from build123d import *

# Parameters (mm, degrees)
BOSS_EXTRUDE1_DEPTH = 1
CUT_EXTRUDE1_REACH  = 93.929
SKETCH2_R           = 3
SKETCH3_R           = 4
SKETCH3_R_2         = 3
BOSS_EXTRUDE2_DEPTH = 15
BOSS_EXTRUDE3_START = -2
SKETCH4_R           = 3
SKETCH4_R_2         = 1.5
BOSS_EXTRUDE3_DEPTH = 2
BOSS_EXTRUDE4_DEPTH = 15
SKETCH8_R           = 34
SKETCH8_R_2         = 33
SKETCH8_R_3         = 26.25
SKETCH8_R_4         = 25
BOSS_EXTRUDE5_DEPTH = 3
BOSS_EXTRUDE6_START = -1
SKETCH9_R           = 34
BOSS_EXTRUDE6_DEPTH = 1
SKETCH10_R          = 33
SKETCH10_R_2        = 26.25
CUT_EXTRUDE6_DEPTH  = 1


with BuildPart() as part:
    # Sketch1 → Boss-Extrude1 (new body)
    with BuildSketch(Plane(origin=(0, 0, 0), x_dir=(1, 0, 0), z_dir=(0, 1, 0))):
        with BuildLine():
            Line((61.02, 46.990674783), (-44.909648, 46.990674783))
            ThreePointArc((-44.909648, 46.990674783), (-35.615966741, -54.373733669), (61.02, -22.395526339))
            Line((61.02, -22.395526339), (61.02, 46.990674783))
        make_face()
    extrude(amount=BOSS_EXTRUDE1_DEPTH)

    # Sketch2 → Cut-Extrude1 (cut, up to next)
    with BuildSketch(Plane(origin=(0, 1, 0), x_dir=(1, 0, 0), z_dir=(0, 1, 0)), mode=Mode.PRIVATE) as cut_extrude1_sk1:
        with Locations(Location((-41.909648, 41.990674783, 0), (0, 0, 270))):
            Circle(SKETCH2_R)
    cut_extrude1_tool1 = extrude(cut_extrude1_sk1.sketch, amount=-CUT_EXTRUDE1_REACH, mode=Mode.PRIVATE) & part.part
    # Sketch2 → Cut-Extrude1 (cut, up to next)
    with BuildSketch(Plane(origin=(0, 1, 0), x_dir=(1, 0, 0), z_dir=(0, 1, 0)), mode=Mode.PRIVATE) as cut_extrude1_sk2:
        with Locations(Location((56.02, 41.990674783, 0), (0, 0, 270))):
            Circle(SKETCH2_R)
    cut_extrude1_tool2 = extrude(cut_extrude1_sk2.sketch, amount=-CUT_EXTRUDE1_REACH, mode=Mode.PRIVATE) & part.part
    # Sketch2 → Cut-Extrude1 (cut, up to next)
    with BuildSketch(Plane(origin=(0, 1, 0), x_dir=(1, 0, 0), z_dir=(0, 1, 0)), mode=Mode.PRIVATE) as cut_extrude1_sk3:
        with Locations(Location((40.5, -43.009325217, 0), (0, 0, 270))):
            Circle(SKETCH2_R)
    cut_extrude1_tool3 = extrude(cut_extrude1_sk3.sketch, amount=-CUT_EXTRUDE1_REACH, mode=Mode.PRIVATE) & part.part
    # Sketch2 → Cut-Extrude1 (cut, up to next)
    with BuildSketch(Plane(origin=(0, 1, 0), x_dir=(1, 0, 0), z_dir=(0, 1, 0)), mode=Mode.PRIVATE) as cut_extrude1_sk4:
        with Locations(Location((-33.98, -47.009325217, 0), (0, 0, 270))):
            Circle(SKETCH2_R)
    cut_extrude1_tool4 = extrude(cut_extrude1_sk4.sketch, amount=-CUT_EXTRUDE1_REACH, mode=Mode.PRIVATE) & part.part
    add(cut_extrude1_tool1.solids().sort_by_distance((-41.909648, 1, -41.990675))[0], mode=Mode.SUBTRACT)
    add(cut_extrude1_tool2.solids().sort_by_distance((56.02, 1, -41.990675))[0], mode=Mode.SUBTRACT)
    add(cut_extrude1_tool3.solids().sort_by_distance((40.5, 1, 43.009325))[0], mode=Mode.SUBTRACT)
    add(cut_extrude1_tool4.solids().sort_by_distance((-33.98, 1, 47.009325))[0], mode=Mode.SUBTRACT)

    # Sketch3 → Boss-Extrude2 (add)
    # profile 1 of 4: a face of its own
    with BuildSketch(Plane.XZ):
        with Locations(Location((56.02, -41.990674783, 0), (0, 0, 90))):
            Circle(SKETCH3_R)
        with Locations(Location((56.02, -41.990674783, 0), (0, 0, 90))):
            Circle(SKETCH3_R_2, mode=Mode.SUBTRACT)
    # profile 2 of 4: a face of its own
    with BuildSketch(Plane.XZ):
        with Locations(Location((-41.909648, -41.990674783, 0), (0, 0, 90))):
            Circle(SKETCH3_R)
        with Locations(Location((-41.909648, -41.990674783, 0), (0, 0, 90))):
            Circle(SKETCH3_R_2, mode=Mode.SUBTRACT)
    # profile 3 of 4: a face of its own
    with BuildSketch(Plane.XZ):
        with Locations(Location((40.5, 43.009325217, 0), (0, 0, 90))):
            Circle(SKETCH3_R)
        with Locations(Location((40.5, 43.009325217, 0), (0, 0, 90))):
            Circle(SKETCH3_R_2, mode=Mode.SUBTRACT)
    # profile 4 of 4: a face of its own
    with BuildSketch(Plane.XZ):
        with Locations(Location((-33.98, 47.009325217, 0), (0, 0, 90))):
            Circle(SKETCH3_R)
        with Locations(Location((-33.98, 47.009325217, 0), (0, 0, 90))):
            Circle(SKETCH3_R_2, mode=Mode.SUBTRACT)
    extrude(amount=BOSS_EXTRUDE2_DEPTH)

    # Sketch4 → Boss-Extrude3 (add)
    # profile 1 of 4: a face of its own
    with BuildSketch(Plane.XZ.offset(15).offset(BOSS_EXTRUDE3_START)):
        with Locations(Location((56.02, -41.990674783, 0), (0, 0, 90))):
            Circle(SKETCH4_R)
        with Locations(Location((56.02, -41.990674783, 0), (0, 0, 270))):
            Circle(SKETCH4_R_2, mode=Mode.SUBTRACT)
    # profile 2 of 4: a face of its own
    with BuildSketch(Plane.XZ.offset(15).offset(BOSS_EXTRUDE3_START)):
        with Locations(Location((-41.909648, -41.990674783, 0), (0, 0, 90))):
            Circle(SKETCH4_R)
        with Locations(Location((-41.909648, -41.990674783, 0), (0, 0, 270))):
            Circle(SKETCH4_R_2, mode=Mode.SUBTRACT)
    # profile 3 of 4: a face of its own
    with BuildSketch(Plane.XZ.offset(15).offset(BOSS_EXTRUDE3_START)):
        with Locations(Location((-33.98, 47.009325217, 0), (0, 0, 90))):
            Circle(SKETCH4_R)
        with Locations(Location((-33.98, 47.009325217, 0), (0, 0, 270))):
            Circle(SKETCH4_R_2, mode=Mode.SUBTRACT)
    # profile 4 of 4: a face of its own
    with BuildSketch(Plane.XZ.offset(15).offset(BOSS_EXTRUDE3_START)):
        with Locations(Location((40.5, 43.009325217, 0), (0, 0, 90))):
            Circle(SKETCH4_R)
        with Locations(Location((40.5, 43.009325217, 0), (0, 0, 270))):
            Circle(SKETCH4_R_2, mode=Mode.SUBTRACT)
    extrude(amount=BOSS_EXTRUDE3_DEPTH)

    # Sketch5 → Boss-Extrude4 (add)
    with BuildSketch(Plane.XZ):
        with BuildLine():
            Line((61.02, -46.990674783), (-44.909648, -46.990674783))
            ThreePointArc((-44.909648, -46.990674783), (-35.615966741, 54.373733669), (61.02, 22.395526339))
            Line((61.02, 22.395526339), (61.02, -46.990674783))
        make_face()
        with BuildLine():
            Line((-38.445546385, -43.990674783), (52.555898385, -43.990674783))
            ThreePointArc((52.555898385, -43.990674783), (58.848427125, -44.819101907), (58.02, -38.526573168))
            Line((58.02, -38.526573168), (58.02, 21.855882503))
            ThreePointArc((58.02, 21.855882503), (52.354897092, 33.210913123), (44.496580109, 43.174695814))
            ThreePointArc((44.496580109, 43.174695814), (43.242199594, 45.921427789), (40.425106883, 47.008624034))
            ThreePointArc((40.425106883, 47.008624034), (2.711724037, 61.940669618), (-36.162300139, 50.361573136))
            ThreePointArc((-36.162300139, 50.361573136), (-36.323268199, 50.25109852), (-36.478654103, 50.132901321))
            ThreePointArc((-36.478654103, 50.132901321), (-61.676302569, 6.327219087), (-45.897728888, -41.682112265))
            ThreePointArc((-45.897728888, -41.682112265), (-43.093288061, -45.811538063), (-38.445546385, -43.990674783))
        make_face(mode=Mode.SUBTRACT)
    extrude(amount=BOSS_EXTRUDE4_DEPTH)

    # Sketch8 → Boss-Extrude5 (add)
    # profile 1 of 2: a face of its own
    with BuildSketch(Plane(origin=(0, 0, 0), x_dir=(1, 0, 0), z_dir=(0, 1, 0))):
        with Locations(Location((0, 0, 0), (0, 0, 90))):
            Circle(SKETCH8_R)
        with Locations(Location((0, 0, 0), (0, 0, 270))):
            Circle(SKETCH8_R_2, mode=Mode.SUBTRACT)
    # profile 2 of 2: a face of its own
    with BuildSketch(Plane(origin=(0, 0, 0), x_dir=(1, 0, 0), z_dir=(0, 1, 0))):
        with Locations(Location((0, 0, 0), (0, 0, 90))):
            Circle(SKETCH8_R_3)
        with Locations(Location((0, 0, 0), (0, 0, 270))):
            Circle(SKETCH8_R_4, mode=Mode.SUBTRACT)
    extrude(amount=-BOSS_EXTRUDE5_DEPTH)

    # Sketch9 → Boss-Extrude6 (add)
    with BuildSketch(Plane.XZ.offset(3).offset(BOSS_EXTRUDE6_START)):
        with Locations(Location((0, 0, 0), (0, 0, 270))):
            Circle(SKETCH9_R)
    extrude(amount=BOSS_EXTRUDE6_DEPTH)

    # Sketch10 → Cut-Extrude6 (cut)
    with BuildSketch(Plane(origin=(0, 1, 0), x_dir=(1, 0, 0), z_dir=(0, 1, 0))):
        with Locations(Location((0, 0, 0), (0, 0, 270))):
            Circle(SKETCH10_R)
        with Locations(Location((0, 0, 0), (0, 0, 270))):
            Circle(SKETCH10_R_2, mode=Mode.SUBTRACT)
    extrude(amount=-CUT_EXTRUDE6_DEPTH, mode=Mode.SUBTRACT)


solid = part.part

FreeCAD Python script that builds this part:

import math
import FreeCAD as App
import Part
import Sketcher

doc = App.newDocument("Part")
body = doc.addObject("PartDesign::Body", "Body")

# Sketch on XZ plane
sketch1 = body.newObject("Sketcher::SketchObject", "Sketch")
sketch1.AttachmentSupport = (doc.getObject("XZ_Plane"), [""])
sketch1.MapMode = "FlatFace"
sketch1.addGeometry(Part.LineSegment(App.Vector(61, -47, 0), App.Vector(-45, -47, 0)), False)
sketch1.addGeometry(Part.ArcOfCircle(Part.Circle(App.Vector(0, 0, 0), App.Vector(0, 0, 1), 65), math.radians(20), math.radians(226)), False)
sketch1.addGeometry(Part.LineSegment(App.Vector(61, 22, 0), App.Vector(61, -47, 0)), False)
sketch1.addConstraint(Sketcher.Constraint("Coincident", 0, 2, 1, 2))
sketch1.addConstraint(Sketcher.Constraint("Coincident", 1, 1, 2, 1))
sketch1.addConstraint(Sketcher.Constraint("Coincident", 2, 2, 0, 1))
sketch1.addConstraint(Sketcher.Constraint("Horizontal", 0))
sketch1.addConstraint(Sketcher.Constraint("Vertical", 2))
sketch1.addConstraint(Sketcher.Constraint("Coincident", 1, 3, -1, 1))
sketch1.addConstraint(Sketcher.Constraint("Radius", 1, 65.0))
sketch1.addConstraint(Sketcher.Constraint("DistanceX", -1, 1, 1, 1, 61.02))
sketch1.addConstraint(Sketcher.Constraint("DistanceY", 2, 2, 2, 1, 69.386201))
pad1 = body.newObject("PartDesign::Pad", "Pad")
pad1.Profile = sketch1
pad1.Length = 1
pad1.Reversed = True

# Sketch on XZ plane
sketch2 = body.newObject("Sketcher::SketchObject", "Sketch001")
sketch2.AttachmentSupport = (doc.getObject("XZ_Plane"), [""])
sketch2.MapMode = "FlatFace"
sketch2.AttachmentOffset = App.Placement(App.Vector(0, 0, -1), App.Rotation())
sketch2.addGeometry(Part.Circle(App.Vector(-41.9, -42, 0), App.Vector(0, 0, 1), 3), False)
sketch2.addConstraint(Sketcher.Constraint("Diameter", 0, 6.0))
sketch2.addConstraint(Sketcher.Constraint("DistanceX", 0, 3, -1, 1, 41.909648))
sketch2.addConstraint(Sketcher.Constraint("DistanceY", 0, 3, -1, 1, 41.990675))
pocket1 = body.newObject("PartDesign::Pocket", "Pocket")
pocket1.Profile = sketch2
pocket1.Type = "UpToFirst"
pocket1.Reversed = True

# Sketch on XZ plane
sketch3 = body.newObject("Sketcher::SketchObject", "Sketch002")
sketch3.AttachmentSupport = (doc.getObject("XZ_Plane"), [""])
sketch3.MapMode = "FlatFace"
sketch3.AttachmentOffset = App.Placement(App.Vector(0, 0, -1), App.Rotation())
sketch3.addGeometry(Part.Circle(App.Vector(56, -42, 0), App.Vector(0, 0, 1), 3), False)
sketch3.addConstraint(Sketcher.Constraint("Diameter", 0, 6.0))
sketch3.addConstraint(Sketcher.Constraint("DistanceX", -1, 1, 0, 3, 56.02))
sketch3.addConstraint(Sketcher.Constraint("DistanceY", 0, 3, -1, 1, 41.990675))
pocket2 = body.newObject("PartDesign::Pocket", "Pocket001")
pocket2.Profile = sketch3
pocket2.Type = "UpToFirst"
pocket2.Reversed = True

# Sketch on XZ plane
sketch4 = body.newObject("Sketcher::SketchObject", "Sketch003")
sketch4.AttachmentSupport = (doc.getObject("XZ_Plane"), [""])
sketch4.MapMode = "FlatFace"
sketch4.AttachmentOffset = App.Placement(App.Vector(0, 0, -1), App.Rotation())
sketch4.addGeometry(Part.Circle(App.Vector(40.5, 43, 0), App.Vector(0, 0, 1), 3), False)
sketch4.addConstraint(Sketcher.Constraint("Diameter", 0, 6.0))
sketch4.addConstraint(Sketcher.Constraint("DistanceX", -1, 1, 0, 3, 40.5))
sketch4.addConstraint(Sketcher.Constraint("DistanceY", -1, 1, 0, 3, 43.009325))
pocket3 = body.newObject("PartDesign::Pocket", "Pocket002")
pocket3.Profile = sketch4
pocket3.Type = "UpToFirst"
pocket3.Reversed = True

# Sketch on XZ plane
sketch5 = body.newObject("Sketcher::SketchObject", "Sketch004")
sketch5.AttachmentSupport = (doc.getObject("XZ_Plane"), [""])
sketch5.MapMode = "FlatFace"
sketch5.AttachmentOffset = App.Placement(App.Vector(0, 0, -1), App.Rotation())
sketch5.addGeometry(Part.Circle(App.Vector(-34, 47, 0), App.Vector(0, 0, 1), 3), False)
sketch5.addConstraint(Sketcher.Constraint("Diameter", 0, 6.0))
sketch5.addConstraint(Sketcher.Constraint("DistanceX", 0, 3, -1, 1, 33.98))
sketch5.addConstraint(Sketcher.Constraint("DistanceY", -1, 1, 0, 3, 47.009325))
pocket4 = body.newObject("PartDesign::Pocket", "Pocket003")
pocket4.Profile = sketch5
pocket4.Type = "UpToFirst"
pocket4.Reversed = True

# Sketch on XZ plane
sketch6 = body.newObject("Sketcher::SketchObject", "Sketch005")
sketch6.AttachmentSupport = (doc.getObject("XZ_Plane"), [""])
sketch6.MapMode = "FlatFace"
sketch6.addGeometry(Part.Circle(App.Vector(56, -42, 0), App.Vector(0, 0, 1), 4), False)
sketch6.addGeometry(Part.Circle(App.Vector(56, -42, 0), App.Vector(0, 0, 1), 3), False)
sketch6.addGeometry(Part.Circle(App.Vector(-41.9, -42, 0), App.Vector(0, 0, 1), 4), False)
sketch6.addGeometry(Part.Circle(App.Vector(-41.9, -42, 0), App.Vector(0, 0, 1), 3), False)
sketch6.addGeometry(Part.Circle(App.Vector(40.5, 43, 0), App.Vector(0, 0, 1), 4), False)
sketch6.addGeometry(Part.Circle(App.Vector(40.5, 43, 0), App.Vector(0, 0, 1), 3), False)
sketch6.addGeometry(Part.Circle(App.Vector(-34, 47, 0), App.Vector(0, 0, 1), 4), False)
sketch6.addGeometry(Part.Circle(App.Vector(-34, 47, 0), App.Vector(0, 0, 1), 3), False)
sketch6.addConstraint(Sketcher.Constraint("Coincident", 1, 3, 0, 3))
sketch6.addConstraint(Sketcher.Constraint("Coincident", 3, 3, 2, 3))
sketch6.addConstraint(Sketcher.Constraint("Coincident", 5, 3, 4, 3))
sketch6.addConstraint(Sketcher.Constraint("Coincident", 7, 3, 6, 3))
sketch6.addConstraint(Sketcher.Constraint("Equal", 0, 2))
sketch6.addConstraint(Sketcher.Constraint("Equal", 1, 3))
sketch6.addConstraint(Sketcher.Constraint("Equal", 2, 4))
sketch6.addConstraint(Sketcher.Constraint("Equal", 3, 5))
sketch6.addConstraint(Sketcher.Constraint("Equal", 4, 6))
sketch6.addConstraint(Sketcher.Constraint("Equal", 5, 7))
sketch6.addConstraint(Sketcher.Constraint("Horizontal", 1, 3, 2, 3))
sketch6.addConstraint(Sketcher.Constraint("Diameter", 0, 8.0))
sketch6.addConstraint(Sketcher.Constraint("Diameter", 1, 6.0))
sketch6.addConstraint(Sketcher.Constraint("DistanceY", 0, 3, 4, 3, 85.0))
sketch6.addConstraint(Sketcher.Constraint("DistanceY", 4, 3, 6, 3, 4.0))
sketch6.addConstraint(Sketcher.Constraint("DistanceX", 6, 3, 0, 3, 90.0))
sketch6.addConstraint(Sketcher.Constraint("DistanceX", -1, 1, 4, 3, 40.5))
sketch6.addConstraint(Sketcher.Constraint("DistanceX", -1, 1, 0, 3, 56.02))
sketch6.addConstraint(Sketcher.Constraint("DistanceX", 2, 3, 0, 3, 97.929648))
sketch6.addConstraint(Sketcher.Constraint("DistanceY", 0, 3, -1, 1, 41.990675))
pad2 = body.newObject("PartDesign::Pad", "Pad001")
pad2.Profile = sketch6
pad2.Length = 15

# Sketch on XZ plane
sketch7 = body.newObject("Sketcher::SketchObject", "Sketch006")
sketch7.AttachmentSupport = (doc.getObject("XZ_Plane"), [""])
sketch7.MapMode = "FlatFace"
sketch7.AttachmentOffset = App.Placement(App.Vector(0, 0, 13), App.Rotation())
sketch7.addGeometry(Part.Circle(App.Vector(56, -42, 0), App.Vector(0, 0, 1), 3), False)
sketch7.addGeometry(Part.Circle(App.Vector(56, -42, 0), App.Vector(0, 0, 1), 1.5), False)
sketch7.addGeometry(Part.Circle(App.Vector(-41.9, -42, 0), App.Vector(0, 0, 1), 3), False)
sketch7.addGeometry(Part.Circle(App.Vector(-41.9, -42, 0), App.Vector(0, 0, 1), 1.5), False)
sketch7.addGeometry(Part.Circle(App.Vector(-34, 47, 0), App.Vector(0, 0, 1), 3), False)
sketch7.addGeometry(Part.Circle(App.Vector(-34, 47, 0), App.Vector(0, 0, 1), 1.5), False)
sketch7.addGeometry(Part.Circle(App.Vector(40.5, 43, 0), App.Vector(0, 0, 1), 3), False)
sketch7.addGeometry(Part.Circle(App.Vector(40.5, 43, 0), App.Vector(0, 0, 1), 1.5), False)
sketch7.addConstraint(Sketcher.Constraint("Coincident", 1, 3, 0, 3))
sketch7.addConstraint(Sketcher.Constraint("Coincident", 3, 3, 2, 3))
sketch7.addConstraint(Sketcher.Constraint("Coincident", 5, 3, 4, 3))
sketch7.addConstraint(Sketcher.Constraint("Coincident", 7, 3, 6, 3))
sketch7.addConstraint(Sketcher.Constraint("Equal", 0, 2))
sketch7.addConstraint(Sketcher.Constraint("Equal", 1, 3))
sketch7.addConstraint(Sketcher.Constraint("Equal", 2, 4))
sketch7.addConstraint(Sketcher.Constraint("Equal", 3, 5))
sketch7.addConstraint(Sketcher.Constraint("Equal", 4, 6))
sketch7.addConstraint(Sketcher.Constraint("Equal", 5, 7))
sketch7.addConstraint(Sketcher.Constraint("Horizontal", 1, 3, 2, 3))
sketch7.addConstraint(Sketcher.Constraint("Diameter", 0, 6.0))
sketch7.addConstraint(Sketcher.Constraint("Diameter", 1, 3.0))
sketch7.addConstraint(Sketcher.Constraint("DistanceY", 2, 3, 4, 3, 89.0))
sketch7.addConstraint(Sketcher.Constraint("DistanceX", 4, 3, 0, 3, 90.0))
sketch7.addConstraint(Sketcher.Constraint("DistanceY", 6, 3, 4, 3, 4.0))
sketch7.addConstraint(Sketcher.Constraint("DistanceX", -1, 1, 6, 3, 40.5))
sketch7.addConstraint(Sketcher.Constraint("DistanceX", -1, 1, 0, 3, 56.02))
sketch7.addConstraint(Sketcher.Constraint("DistanceX", 2, 3, 0, 3, 97.929648))
sketch7.addConstraint(Sketcher.Constraint("DistanceY", 0, 3, -1, 1, 41.990675))
pad3 = body.newObject("PartDesign::Pad", "Pad002")
pad3.Profile = sketch7
pad3.Length = 2

# Sketch on XZ plane
sketch8 = body.newObject("Sketcher::SketchObject", "Sketch007")
sketch8.AttachmentSupport = (doc.getObject("XZ_Plane"), [""])
sketch8.MapMode = "FlatFace"
sketch8.addGeometry(Part.LineSegment(App.Vector(-44.909648, -46.990675, 0), App.Vector(61.02, -46.990675, 0)), False)
sketch8.addGeometry(Part.LineSegment(App.Vector(61.02, -46.990675, 0), App.Vector(61.02, 22.395526, 0)), False)
sketch8.addGeometry(Part.ArcOfCircle(Part.Circle(App.Vector(0, 0, 0), App.Vector(0, 0, 1), 65), math.radians(20.154119), math.radians(226.297206)), False)
sketch8.addGeometry(Part.ArcOfCircle(Part.Circle(App.Vector(-41.909648, -41.990675, 0), App.Vector(0, 0, 1), 4), math.radians(175.575772), math.radians(330)), False)
sketch8.addGeometry(Part.ArcOfCircle(Part.Circle(App.Vector(0, 0, 0), App.Vector(0, 0, 1), 62), math.radians(126.041097), math.radians(222.24422)), False)
sketch8.addGeometry(Part.ArcOfCircle(Part.Circle(App.Vector(-33.98, 47.009325, 0), App.Vector(0, 0, 1), 4.000001), math.radians(123.063969), math.radians(128.657495)), False)
sketch8.addGeometry(Part.ArcOfCircle(Part.Circle(App.Vector(0, 0, 0), App.Vector(0, 0, 1), 62), math.radians(49.306087), math.radians(125.680367)), False)
sketch8.addGeometry(Part.ArcOfCircle(Part.Circle(App.Vector(40.5, 43.009325, 0), App.Vector(0, 0, 1), 4), math.radians(2.369435), math.radians(91.072828)), False)
sketch8.addGeometry(Part.ArcOfCircle(Part.Circle(App.Vector(0, 0, 0), App.Vector(0, 0, 1), 62), math.radians(20.641174), math.radians(44.136175)), False)
sketch8.addGeometry(Part.LineSegment(App.Vector(58.02, 21.855883, 0), App.Vector(58.02, -38.526573, 0)), False)
sketch8.addGeometry(Part.ArcOfCircle(Part.Circle(App.Vector(56.02, -41.990675, 0), App.Vector(0, 0, 1), 4), math.radians(-150), math.radians(60)), False)
sketch8.addGeometry(Part.LineSegment(App.Vector(52.555898, -43.990675, 0), App.Vector(-38.445546, -43.990675, 0)), False)
sketch8.addConstraint(Sketcher.Constraint("Coincident", 0, 2, 1, 1))
sketch8.addConstraint(Sketcher.Constraint("Coincident", 1, 2, 2, 1))
sketch8.addConstraint(Sketcher.Constraint("Coincident", 2, 2, 0, 1))
sketch8.addConstraint(Sketcher.Constraint("Coincident", 3, 1, 4, 2))
sketch8.addConstraint(Sketcher.Constraint("Coincident", 4, 1, 5, 2))
sketch8.addConstraint(Sketcher.Constraint("Coincident", 5, 1, 6, 2))
sketch8.addConstraint(Sketcher.Constraint("Coincident", 6, 1, 7, 2))
sketch8.addConstraint(Sketcher.Constraint("Coincident", 7, 1, 8, 2))
sketch8.addConstraint(Sketcher.Constraint("Coincident", 8, 1, 9, 1))
sketch8.addConstraint(Sketcher.Constraint("Coincident", 9, 2, 10, 2))
sketch8.addConstraint(Sketcher.Constraint("Coincident", 10, 1, 11, 1))
sketch8.addConstraint(Sketcher.Constraint("Coincident", 11, 2, 3, 2))
sketch8.addConstraint(Sketcher.Constraint("Horizontal", 0))
sketch8.addConstraint(Sketcher.Constraint("Vertical", 1))
sketch8.addConstraint(Sketcher.Constraint("Vertical", 9))
sketch8.addConstraint(Sketcher.Constraint("Horizontal", 11))
sketch8.addConstraint(Sketcher.Constraint("Coincident", 2, 3, -1, 1))
sketch8.addConstraint(Sketcher.Constraint("Coincident", 4, 3, -1, 1))
sketch8.addConstraint(Sketcher.Constraint("Coincident", 6, 3, -1, 1))
sketch8.addConstraint(Sketcher.Constraint("Coincident", 8, 3, -1, 1))
sketch8.addConstraint(Sketcher.Constraint("Equal", 3, 5))
sketch8.addConstraint(Sketcher.Constraint("Equal", 4, 6))
sketch8.addConstraint(Sketcher.Constraint("Equal", 5, 7))
sketch8.addConstraint(Sketcher.Constraint("Equal", 6, 8))
sketch8.addConstraint(Sketcher.Constraint("Equal", 7, 10))
sketch8.addConstraint(Sketcher.Constraint("Horizontal", 3, 3, 10, 3))
sketch8.addConstraint(Sketcher.Constraint("Radius", 2, 65.0))
sketch8.addConstraint(Sketcher.Constraint("Radius", 3, 4.0))
sketch8.addConstraint(Sketcher.Constraint("Radius", 4, 62.0))
sketch8.addConstraint(Sketcher.Constraint("DistanceY", 3, 3, 5, 3, 89.0))
sketch8.addConstraint(Sketcher.Constraint("DistanceY", 7, 3, 5, 3, 4.0))
sketch8.addConstraint(Sketcher.Constraint("DistanceX", 10, 3, 0, 2, 5.0))
sketch8.addConstraint(Sketcher.Constraint("DistanceY", 0, 2, 10, 3, 5.0))
sketch8.addConstraint(Sketcher.Constraint("DistanceX", 2, 2, 3, 3, 3.0))
sketch8.addConstraint(Sketcher.Constraint("DistanceX", 8, 1, 1, 2, 3.0))
sketch8.addConstraint(Sketcher.Constraint("DistanceY", 10, 1, 10, 3, 2.0))
sketch8.addConstraint(Sketcher.Constraint("DistanceX", -1, 1, 7, 3, 40.5))
sketch8.addConstraint(Sketcher.Constraint("DistanceX", 5, 3, -1, 1, 33.98))
sketch8.addConstraint(Sketcher.Constraint("DistanceX", -1, 1, 10, 3, 56.02))
sketch8.addConstraint(Sketcher.Constraint("DistanceY", 1, 1, 1, 2, 69.386201))
pad4 = body.newObject("PartDesign::Pad", "Pad003")
pad4.Profile = sketch8
pad4.Length = 15

# Sketch on XZ plane
sketch9 = body.newObject("Sketcher::SketchObject", "Sketch008")
sketch9.AttachmentSupport = (doc.getObject("XZ_Plane"), [""])
sketch9.MapMode = "FlatFace"
sketch9.addGeometry(Part.Circle(App.Vector(0, 0, 0), App.Vector(0, 0, 1), 34), False)
sketch9.addGeometry(Part.Circle(App.Vector(0, 0, 0), App.Vector(0, 0, 1), 33), False)
sketch9.addGeometry(Part.Circle(App.Vector(0, 0, 0), App.Vector(0, 0, 1), 26), False)
sketch9.addGeometry(Part.Circle(App.Vector(0, 0, 0), App.Vector(0, 0, 1), 25), False)
sketch9.addConstraint(Sketcher.Constraint("Coincident", 0, 3, -1, 1))
sketch9.addConstraint(Sketcher.Constraint("Coincident", 1, 3, -1, 1))
sketch9.addConstraint(Sketcher.Constraint("Coincident", 2, 3, -1, 1))
sketch9.addConstraint(Sketcher.Constraint("Coincident", 3, 3, -1, 1))
sketch9.addConstraint(Sketcher.Constraint("Diameter", 0, 68.0))
sketch9.addConstraint(Sketcher.Constraint("Diameter", 1, 66.0))
sketch9.addConstraint(Sketcher.Constraint("Diameter", 3, 50.0))
sketch9.addConstraint(Sketcher.Constraint("Diameter", 2, 52.5))
pad5 = body.newObject("PartDesign::Pad", "Pad004")
pad5.Profile = sketch9
pad5.Length = 3

# Sketch on XZ plane
sketch10 = body.newObject("Sketcher::SketchObject", "Sketch009")
sketch10.AttachmentSupport = (doc.getObject("XZ_Plane"), [""])
sketch10.MapMode = "FlatFace"
sketch10.AttachmentOffset = App.Placement(App.Vector(0, 0, 2), App.Rotation())
sketch10.addGeometry(Part.Circle(App.Vector(0, 0, 0), App.Vector(0, 0, 1), 34), False)
sketch10.addConstraint(Sketcher.Constraint("Coincident", 0, 3, -1, 1))
sketch10.addConstraint(Sketcher.Constraint("Diameter", 0, 68.0))
pad6 = body.newObject("PartDesign::Pad", "Pad005")
pad6.Profile = sketch10
pad6.Length = 1

# Sketch on XZ plane
sketch11 = body.newObject("Sketcher::SketchObject", "Sketch010")
sketch11.AttachmentSupport = (doc.getObject("XZ_Plane"), [""])
sketch11.MapMode = "FlatFace"
sketch11.AttachmentOffset = App.Placement(App.Vector(0, 0, -1), App.Rotation())
sketch11.addGeometry(Part.Circle(App.Vector(0, 0, 0), App.Vector(0, 0, 1), 33), False)
sketch11.addGeometry(Part.Circle(App.Vector(0, 0, 0), App.Vector(0, 0, 1), 26), False)
sketch11.addConstraint(Sketcher.Constraint("Coincident", 0, 3, -1, 1))
sketch11.addConstraint(Sketcher.Constraint("Coincident", 1, 3, -1, 1))
sketch11.addConstraint(Sketcher.Constraint("Diameter", 0, 66.0))
sketch11.addConstraint(Sketcher.Constraint("Diameter", 1, 52.5))
pocket5 = body.newObject("PartDesign::Pocket", "Pocket004")
pocket5.Profile = sketch11
pocket5.Length = 1
pocket5.Reversed = True

doc.recompute()
